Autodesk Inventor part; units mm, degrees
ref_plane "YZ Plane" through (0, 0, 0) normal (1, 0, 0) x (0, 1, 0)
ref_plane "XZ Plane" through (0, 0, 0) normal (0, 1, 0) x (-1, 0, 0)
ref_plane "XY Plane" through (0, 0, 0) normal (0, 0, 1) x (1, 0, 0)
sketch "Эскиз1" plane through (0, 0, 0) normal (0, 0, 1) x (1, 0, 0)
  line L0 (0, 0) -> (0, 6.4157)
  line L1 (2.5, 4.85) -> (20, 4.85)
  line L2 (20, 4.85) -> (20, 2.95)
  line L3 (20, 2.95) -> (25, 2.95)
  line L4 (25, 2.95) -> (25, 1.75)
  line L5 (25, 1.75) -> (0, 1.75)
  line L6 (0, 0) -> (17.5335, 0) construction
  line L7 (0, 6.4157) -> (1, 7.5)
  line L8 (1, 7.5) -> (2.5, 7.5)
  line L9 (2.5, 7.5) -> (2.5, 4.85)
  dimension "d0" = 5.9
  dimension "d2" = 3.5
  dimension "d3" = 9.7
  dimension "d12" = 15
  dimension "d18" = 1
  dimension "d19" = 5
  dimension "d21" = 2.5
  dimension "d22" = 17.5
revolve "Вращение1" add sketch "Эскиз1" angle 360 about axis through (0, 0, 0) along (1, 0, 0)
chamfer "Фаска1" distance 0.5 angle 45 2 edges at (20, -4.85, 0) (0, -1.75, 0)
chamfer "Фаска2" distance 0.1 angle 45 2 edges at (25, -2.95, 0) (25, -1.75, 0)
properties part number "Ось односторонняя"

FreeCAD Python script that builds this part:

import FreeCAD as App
import Part
import Sketcher

V = App.Vector
Q = App.Units.Quantity


def edges_at(feature, points):
    """Names of the edges that pass closest to the given points."""
    edges = feature.Shape.Edges
    near = lambda p: min(range(len(edges)), key=lambda i: edges[i].distToShape(Part.Vertex(*p))[0])
    return sorted({f"Edge{near(p) + 1}" for p in points})


def add_polygon(sketch, points):
    """Adds a closed chain of lines whose ends are joined by coincident constraints."""
    first, n = sketch.GeometryCount, len(points)
    for a, b in zip(points, points[1:] + points[:1]):
        sketch.addGeometry(Part.LineSegment(App.Vector(*a, 0), App.Vector(*b, 0)), False)
    for i in range(n):
        sketch.addConstraint(Sketcher.Constraint("Coincident", first + i, 2, first + (i + 1) % n, 1))

doc = App.newDocument("Part")
body = doc.addObject("PartDesign::Body", "Body")

sketch1 = body.newObject("Sketcher::SketchObject", "Sketch")
sketch1.AttachmentSupport = (doc.getObject("XY_Plane"), [""])
sketch1.MapMode = "FlatFace"
add_polygon(sketch1, [(0, 6.4), (0, 1.8), (25, 1.8), (25, 3), (20, 3), (20, 4.8), (2.5, 4.8), (2.5, 7.5), (1, 7.5)])
sketch1.addConstraint([
    Sketcher.Constraint("Vertical", 0),
    Sketcher.Constraint("Horizontal", 1),
    Sketcher.Constraint("Vertical", 2),
    Sketcher.Constraint("Horizontal", 3),
    Sketcher.Constraint("Vertical", 4),
    Sketcher.Constraint("Horizontal", 5),
    Sketcher.Constraint("Vertical", 6),
    Sketcher.Constraint("Horizontal", 7),
    Sketcher.Constraint("PointOnObject", 0, 2, -2),
    Sketcher.Constraint("DistanceX", 3, 2, 3, 1, Q("5 mm")),
    Sketcher.Constraint("DistanceX", 5, 2, 5, 1, Q("17.5 mm")),
    Sketcher.Constraint("DistanceX", -1, 1, 7, 2, Q("1 mm")),
    Sketcher.Constraint("DistanceX", -1, 1, 5, 2, Q("2.5 mm")),
    Sketcher.Constraint("DistanceY", 2, 1, 2, 2, Q("1.2 mm")),
    Sketcher.Constraint("DistanceY", 4, 1, 4, 2, Q("1.9 mm")),
    Sketcher.Constraint("DistanceY", 6, 1, 6, 2, Q("2.65 mm")),
    Sketcher.Constraint("DistanceY", -1, 1, 6, 2, Q("7.5 mm")),
    Sketcher.Constraint("Distance", 8, Q("1.475 mm")),
])
revolution = body.newObject("PartDesign::Revolution", "Revolution")
revolution.Profile = sketch1
revolution.ReferenceAxis = (sketch1, ["H_Axis"])
revolution.Angle = 360
doc.recompute()

chamfer = body.newObject("PartDesign::Chamfer", "Chamfer")
chamfer.Base = (revolution, edges_at(revolution, [(20, -4.85, 0), (0, -1.75, 0)]))
chamfer.Size = 0.5
doc.recompute()

chamfer2 = body.newObject("PartDesign::Chamfer", "Chamfer001")
chamfer2.Base = (chamfer, edges_at(chamfer, [(25, -2.95, 0), (25, -1.75, 0)]))
chamfer2.Size = 0.1

doc.recompute()
